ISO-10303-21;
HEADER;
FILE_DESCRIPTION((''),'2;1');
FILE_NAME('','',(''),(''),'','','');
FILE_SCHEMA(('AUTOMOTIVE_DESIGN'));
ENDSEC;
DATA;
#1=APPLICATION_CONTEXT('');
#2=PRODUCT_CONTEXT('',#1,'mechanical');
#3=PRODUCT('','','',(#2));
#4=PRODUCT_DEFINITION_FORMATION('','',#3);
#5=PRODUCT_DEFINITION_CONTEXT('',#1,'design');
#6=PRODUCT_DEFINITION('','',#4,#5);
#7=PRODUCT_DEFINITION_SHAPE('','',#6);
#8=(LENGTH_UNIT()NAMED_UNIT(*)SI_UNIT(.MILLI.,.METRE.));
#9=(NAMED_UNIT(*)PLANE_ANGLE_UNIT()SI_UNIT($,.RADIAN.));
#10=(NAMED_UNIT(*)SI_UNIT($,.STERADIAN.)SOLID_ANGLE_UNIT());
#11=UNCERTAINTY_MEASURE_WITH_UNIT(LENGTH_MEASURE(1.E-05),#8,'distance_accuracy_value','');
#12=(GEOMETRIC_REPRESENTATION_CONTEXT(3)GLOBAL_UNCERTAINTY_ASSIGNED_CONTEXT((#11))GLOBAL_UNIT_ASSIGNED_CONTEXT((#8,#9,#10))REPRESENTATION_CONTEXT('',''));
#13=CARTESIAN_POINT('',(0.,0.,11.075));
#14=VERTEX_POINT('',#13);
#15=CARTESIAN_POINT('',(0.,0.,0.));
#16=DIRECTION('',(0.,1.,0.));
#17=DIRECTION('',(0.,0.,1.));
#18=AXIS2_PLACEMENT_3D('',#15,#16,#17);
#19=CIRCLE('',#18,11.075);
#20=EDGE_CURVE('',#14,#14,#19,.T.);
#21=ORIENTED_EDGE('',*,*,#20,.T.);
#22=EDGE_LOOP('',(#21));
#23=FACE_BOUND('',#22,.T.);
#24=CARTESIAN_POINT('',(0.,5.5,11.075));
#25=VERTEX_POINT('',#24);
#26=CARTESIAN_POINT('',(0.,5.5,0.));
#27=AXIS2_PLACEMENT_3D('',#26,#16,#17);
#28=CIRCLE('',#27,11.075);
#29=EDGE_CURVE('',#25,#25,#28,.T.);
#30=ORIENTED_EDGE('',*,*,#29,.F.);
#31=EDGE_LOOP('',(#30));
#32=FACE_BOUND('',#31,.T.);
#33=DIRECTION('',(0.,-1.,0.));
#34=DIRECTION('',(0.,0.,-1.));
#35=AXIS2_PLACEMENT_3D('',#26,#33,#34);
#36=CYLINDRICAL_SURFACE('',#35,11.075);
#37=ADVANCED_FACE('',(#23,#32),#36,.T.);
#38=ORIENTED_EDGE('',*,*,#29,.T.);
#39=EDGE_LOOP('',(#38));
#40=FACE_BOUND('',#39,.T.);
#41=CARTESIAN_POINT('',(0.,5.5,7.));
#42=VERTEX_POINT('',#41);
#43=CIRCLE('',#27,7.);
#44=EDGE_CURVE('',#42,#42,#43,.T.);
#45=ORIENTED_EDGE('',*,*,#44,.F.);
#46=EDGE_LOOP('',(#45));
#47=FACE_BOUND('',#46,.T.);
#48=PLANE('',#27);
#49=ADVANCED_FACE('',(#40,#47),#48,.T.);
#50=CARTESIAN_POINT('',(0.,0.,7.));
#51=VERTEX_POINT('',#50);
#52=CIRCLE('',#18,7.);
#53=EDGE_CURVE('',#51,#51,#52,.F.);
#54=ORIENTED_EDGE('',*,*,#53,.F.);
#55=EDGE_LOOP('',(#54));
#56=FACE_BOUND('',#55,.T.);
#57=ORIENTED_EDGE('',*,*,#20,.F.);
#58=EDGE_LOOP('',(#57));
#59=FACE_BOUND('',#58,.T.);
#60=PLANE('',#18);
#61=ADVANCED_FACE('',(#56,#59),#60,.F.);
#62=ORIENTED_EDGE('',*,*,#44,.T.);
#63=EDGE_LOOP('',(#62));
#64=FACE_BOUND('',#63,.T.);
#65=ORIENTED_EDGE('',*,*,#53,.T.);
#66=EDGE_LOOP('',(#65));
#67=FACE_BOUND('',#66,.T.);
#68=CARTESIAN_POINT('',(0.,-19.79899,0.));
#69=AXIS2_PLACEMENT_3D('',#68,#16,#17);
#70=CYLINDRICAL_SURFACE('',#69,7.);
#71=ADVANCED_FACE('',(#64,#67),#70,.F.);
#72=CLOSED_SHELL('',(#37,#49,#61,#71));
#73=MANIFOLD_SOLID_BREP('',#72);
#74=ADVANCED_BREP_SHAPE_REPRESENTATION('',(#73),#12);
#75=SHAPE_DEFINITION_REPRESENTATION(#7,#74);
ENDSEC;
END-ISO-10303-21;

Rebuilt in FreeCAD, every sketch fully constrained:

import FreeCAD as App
import Part
import Sketcher

V = App.Vector

doc = App.newDocument("Part")
body = doc.addObject("PartDesign::Body", "Body")

sketch1 = body.newObject("Sketcher::SketchObject", "Sketch")
sketch1.AttachmentSupport = (doc.getObject("XZ_Plane"), [""])
sketch1.MapMode = "FlatFace"
sketch1.addGeometry(Part.Circle(V(0, 0, 0), V(0, 0, 1), 11.075), False)
sketch1.addConstraint(Sketcher.Constraint("Coincident", 0, 3, -1, 1))
sketch1.addConstraint(Sketcher.Constraint("Diameter", 0, 22.15))
pad1 = body.newObject("PartDesign::Pad", "Pad")
pad1.Profile = sketch1
pad1.Length = 5.5
pad1.Reversed = True

sketch2 = body.newObject("Sketcher::SketchObject", "Sketch001")
sketch2.AttachmentSupport = (doc.getObject("XZ_Plane"), [""])
sketch2.MapMode = "FlatFace"
sketch2.AttachmentOffset = App.Placement(V(0, 0, -5.5), App.Rotation())
sketch2.addGeometry(Part.Circle(V(0, 0, 0), V(0, 0, 1), 7), False)
sketch2.addConstraint(Sketcher.Constraint("Coincident", 0, 3, -1, 1))
sketch2.addConstraint(Sketcher.Constraint("Diameter", 0, 14.0))
pocket1 = body.newObject("PartDesign::Pocket", "Pocket")
pocket1.Profile = sketch2
pocket1.Length = 5.5
pocket1.Reversed = True

doc.recompute()
